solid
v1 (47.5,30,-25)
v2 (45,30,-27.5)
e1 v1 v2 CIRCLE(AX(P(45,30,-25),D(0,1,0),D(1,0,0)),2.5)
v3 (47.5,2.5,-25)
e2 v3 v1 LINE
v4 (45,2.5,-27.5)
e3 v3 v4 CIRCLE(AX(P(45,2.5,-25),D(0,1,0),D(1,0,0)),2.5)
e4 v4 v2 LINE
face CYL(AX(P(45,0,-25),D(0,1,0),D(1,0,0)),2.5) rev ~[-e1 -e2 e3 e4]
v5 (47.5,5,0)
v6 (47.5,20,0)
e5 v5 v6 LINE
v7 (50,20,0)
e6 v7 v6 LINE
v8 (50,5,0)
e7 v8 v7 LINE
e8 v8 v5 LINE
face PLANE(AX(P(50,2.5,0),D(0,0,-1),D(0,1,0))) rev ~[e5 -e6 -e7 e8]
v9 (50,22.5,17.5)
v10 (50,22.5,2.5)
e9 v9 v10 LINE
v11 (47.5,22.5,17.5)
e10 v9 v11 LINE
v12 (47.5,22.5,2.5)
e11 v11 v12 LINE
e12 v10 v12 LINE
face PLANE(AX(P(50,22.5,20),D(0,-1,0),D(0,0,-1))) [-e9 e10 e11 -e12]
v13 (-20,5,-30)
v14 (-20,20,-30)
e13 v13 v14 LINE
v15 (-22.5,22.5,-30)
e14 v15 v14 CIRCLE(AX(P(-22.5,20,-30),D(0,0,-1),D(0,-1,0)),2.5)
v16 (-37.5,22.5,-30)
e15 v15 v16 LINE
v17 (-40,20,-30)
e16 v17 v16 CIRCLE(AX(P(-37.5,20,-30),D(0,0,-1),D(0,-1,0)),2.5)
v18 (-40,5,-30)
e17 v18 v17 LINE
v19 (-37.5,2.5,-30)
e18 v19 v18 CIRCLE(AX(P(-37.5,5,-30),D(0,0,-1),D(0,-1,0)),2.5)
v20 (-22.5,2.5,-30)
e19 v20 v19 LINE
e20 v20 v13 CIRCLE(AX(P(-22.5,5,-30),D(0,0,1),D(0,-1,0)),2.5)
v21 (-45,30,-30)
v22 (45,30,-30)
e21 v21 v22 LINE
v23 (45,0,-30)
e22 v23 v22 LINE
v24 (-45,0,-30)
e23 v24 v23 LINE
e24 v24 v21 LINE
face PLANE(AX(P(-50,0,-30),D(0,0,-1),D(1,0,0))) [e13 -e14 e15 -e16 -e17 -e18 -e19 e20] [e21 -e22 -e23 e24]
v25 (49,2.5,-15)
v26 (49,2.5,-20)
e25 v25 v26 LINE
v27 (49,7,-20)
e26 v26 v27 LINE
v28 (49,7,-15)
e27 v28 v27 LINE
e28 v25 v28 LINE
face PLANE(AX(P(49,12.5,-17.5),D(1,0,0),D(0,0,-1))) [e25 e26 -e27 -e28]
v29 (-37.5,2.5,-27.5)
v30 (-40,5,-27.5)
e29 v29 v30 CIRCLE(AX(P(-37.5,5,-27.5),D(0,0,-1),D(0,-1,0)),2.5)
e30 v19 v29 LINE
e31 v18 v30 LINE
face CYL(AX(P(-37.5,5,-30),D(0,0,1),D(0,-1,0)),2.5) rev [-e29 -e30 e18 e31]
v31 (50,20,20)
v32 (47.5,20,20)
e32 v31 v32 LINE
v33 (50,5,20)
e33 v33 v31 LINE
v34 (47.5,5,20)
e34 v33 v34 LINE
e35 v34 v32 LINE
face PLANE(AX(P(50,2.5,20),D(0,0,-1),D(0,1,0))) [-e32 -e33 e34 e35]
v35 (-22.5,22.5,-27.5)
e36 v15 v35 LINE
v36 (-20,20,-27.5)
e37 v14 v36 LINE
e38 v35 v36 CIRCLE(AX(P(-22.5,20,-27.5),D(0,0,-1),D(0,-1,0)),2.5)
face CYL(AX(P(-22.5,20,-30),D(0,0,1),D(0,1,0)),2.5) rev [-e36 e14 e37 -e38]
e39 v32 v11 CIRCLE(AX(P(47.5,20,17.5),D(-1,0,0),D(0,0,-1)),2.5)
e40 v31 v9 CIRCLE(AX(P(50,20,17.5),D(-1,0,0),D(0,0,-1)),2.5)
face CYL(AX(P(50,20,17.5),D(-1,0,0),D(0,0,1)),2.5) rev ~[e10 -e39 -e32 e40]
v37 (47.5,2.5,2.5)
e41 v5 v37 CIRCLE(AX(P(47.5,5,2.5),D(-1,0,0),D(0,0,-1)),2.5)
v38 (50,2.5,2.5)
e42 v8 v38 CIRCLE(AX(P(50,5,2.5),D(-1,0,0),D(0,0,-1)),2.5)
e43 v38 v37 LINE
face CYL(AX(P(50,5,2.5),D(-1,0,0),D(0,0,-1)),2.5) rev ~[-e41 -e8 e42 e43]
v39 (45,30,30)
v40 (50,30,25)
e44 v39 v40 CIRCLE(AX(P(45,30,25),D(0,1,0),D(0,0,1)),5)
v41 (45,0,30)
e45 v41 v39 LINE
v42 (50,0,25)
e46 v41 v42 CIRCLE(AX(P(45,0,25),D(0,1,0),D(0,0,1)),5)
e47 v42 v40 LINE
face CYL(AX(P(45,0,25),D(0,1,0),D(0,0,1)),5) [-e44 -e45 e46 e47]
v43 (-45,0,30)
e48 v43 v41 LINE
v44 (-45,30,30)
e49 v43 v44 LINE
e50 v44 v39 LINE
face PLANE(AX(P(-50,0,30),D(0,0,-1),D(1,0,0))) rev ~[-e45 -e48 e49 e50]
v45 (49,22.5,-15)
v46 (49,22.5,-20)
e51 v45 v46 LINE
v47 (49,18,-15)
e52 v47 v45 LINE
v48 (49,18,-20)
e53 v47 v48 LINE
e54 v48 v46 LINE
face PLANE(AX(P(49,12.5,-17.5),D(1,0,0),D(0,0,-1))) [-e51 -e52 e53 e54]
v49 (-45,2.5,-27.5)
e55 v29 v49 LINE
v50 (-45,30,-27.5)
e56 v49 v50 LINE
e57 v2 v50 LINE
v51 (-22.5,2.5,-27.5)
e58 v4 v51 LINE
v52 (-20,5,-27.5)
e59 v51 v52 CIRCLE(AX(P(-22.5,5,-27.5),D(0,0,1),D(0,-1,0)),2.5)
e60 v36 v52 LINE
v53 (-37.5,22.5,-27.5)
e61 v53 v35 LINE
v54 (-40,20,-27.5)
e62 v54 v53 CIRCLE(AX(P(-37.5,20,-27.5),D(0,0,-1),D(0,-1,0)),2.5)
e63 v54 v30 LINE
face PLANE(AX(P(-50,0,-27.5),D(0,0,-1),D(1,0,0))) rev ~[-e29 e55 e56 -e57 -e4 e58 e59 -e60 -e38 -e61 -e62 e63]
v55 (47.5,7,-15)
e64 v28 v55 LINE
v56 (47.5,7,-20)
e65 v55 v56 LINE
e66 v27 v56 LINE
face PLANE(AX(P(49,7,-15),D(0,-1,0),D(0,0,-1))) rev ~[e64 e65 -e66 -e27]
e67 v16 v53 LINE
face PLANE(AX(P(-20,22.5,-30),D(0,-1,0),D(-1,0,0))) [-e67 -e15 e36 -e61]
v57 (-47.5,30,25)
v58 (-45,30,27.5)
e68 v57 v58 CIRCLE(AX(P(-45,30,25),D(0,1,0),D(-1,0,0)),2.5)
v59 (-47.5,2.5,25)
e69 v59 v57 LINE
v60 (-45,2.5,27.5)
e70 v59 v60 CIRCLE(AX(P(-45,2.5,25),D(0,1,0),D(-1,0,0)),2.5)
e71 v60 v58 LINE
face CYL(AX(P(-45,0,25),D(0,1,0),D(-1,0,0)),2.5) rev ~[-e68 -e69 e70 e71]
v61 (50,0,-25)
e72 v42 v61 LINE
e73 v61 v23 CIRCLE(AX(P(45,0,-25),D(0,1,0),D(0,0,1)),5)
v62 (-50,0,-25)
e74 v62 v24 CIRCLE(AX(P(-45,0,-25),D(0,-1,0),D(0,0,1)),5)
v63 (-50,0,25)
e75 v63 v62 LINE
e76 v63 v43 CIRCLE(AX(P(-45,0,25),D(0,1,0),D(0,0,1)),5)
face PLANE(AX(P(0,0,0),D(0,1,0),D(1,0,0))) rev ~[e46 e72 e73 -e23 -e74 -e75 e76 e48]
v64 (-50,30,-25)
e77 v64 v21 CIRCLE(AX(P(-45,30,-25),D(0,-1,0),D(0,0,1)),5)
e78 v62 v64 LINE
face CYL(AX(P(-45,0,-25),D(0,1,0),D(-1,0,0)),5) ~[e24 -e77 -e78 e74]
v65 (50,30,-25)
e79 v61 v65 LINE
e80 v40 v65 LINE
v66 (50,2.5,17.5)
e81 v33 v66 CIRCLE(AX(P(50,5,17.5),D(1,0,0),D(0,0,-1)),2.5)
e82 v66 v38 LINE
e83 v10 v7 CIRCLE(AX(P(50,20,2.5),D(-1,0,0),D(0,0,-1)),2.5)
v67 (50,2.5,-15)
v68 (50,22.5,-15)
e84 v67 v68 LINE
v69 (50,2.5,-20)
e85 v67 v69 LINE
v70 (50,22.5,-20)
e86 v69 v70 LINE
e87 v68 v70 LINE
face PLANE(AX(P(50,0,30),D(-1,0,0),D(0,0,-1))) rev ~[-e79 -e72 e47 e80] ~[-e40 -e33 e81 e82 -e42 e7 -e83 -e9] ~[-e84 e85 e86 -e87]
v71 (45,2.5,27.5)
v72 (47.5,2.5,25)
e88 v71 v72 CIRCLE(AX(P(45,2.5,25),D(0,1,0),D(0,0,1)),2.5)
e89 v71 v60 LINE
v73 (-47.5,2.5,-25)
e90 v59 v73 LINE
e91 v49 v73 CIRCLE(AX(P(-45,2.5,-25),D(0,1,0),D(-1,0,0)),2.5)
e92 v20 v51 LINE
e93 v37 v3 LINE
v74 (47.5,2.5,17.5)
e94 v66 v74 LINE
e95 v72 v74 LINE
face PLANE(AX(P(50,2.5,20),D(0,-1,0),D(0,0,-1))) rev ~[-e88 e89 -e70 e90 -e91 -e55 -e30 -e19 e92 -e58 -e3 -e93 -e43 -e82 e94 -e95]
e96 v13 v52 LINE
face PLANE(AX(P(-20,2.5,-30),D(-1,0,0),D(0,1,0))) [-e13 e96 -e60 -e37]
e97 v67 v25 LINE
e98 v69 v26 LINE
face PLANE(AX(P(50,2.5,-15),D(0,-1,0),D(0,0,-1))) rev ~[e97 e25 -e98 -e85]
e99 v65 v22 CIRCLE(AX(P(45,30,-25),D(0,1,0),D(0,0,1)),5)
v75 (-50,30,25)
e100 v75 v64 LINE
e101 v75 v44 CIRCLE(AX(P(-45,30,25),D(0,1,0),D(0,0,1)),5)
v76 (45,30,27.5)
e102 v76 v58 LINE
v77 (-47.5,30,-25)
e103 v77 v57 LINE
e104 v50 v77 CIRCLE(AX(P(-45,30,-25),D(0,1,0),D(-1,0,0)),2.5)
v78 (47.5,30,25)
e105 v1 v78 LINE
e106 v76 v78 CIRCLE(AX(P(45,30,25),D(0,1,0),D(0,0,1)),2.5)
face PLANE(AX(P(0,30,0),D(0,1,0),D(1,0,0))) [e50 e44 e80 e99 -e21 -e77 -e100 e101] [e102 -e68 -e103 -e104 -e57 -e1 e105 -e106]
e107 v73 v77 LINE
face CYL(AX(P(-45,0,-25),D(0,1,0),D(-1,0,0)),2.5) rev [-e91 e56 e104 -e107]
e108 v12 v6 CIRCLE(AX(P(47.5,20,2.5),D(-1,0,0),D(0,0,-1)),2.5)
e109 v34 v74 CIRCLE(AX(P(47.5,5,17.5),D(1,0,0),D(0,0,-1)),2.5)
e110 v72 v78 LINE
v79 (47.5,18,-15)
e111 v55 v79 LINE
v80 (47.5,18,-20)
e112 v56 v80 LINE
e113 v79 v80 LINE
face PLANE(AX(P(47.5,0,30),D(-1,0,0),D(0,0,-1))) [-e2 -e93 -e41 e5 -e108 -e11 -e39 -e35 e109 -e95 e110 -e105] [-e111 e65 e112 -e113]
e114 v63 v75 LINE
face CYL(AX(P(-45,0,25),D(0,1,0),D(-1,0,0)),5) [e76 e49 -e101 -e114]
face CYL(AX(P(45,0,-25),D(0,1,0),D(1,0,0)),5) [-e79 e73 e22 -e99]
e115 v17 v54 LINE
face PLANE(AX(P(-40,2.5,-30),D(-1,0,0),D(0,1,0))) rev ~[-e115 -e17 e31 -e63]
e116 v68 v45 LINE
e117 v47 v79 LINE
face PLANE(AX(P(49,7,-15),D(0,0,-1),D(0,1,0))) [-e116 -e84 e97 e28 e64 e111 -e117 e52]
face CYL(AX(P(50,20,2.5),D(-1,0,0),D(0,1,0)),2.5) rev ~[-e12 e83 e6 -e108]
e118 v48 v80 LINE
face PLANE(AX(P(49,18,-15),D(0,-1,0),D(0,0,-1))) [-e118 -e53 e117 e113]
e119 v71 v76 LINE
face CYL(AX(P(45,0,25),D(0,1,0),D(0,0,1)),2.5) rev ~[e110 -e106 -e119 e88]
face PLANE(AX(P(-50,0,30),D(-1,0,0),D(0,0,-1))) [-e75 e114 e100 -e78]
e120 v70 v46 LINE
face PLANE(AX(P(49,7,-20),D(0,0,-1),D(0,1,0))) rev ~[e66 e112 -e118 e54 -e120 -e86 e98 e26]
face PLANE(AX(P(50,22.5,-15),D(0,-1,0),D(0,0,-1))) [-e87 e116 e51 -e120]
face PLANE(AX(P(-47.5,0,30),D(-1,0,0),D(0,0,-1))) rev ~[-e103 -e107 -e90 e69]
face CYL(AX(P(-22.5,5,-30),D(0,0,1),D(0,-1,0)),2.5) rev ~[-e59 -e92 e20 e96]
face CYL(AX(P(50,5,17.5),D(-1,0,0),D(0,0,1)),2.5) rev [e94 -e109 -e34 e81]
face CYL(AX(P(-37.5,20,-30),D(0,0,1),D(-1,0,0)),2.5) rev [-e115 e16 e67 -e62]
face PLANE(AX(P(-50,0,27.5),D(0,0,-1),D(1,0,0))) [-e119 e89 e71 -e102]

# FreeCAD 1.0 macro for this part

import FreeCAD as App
import Part
import Sketcher
Q = App.Units.Quantity


def edges_at(feature, points):
    """Names of the edges that pass closest to the given points."""
    edges = feature.Shape.Edges
    near = lambda p: min(range(len(edges)), key=lambda i: edges[i].distToShape(Part.Vertex(*p))[0])
    return sorted({f"Edge{near(p) + 1}" for p in points})


def faces_at(feature, points):
    """Names of the faces that lie closest to the given points."""
    faces = feature.Shape.Faces
    near = lambda p: min(range(len(faces)), key=lambda i: faces[i].distToShape(Part.Vertex(*p))[0])
    return sorted({f"Face{near(p) + 1}" for p in points})

doc = App.newDocument("Part")
body = doc.addObject("PartDesign::Body", "Body")

sketch1 = body.newObject("Sketcher::SketchObject", "Sketch")
sketch1.AttachmentSupport = (doc.getObject("XZ_Plane"), [""])
sketch1.MapMode = "FlatFace"
sketch1.addGeometry([
    Part.LineSegment(App.Vector(-50, -30, 0), App.Vector(-50, 30, 0)),
    Part.LineSegment(App.Vector(-50, 30, 0), App.Vector(50, 30, 0)),
    Part.LineSegment(App.Vector(50, 30, 0), App.Vector(50, -30, 0)),
    Part.LineSegment(App.Vector(50, -30, 0), App.Vector(-50, -30, 0)),
], False)
sketch1.addConstraint([
    Sketcher.Constraint("Coincident", 0, 2, 1, 1),
    Sketcher.Constraint("Coincident", 1, 2, 2, 1),
    Sketcher.Constraint("Coincident", 2, 2, 3, 1),
    Sketcher.Constraint("Coincident", 3, 2, 0, 1),
    Sketcher.Constraint("Vertical", 0),
    Sketcher.Constraint("Horizontal", 1),
    Sketcher.Constraint("Vertical", 2),
    Sketcher.Constraint("Horizontal", 3),
    Sketcher.Constraint("Symmetric", 0, 2, 2, 2, -1, 1),
    Sketcher.Constraint("DistanceX", 1, 1, 1, 2, Q("100 mm")),
    Sketcher.Constraint("DistanceY", 0, 1, 0, 2, Q("60 mm")),
])
pad1 = body.newObject("PartDesign::Pad", "Pad")
pad1.Profile = sketch1
pad1.Length = 30
pad1.Reversed = True
doc.recompute()

fillet = body.newObject("PartDesign::Fillet", "Fillet")
fillet.Base = (pad1, edges_at(pad1, [
    (50, 15, 30),
    (-50, 15, 30),
    (-50, 15, -30),
    (50, 15, -30),
]))
fillet.Radius = 5
doc.recompute()

thickness = body.newObject("PartDesign::Thickness", "Thickness")
thickness.Base = (fillet, faces_at(fillet, [(0, 30, 0)]))
thickness.Value = 2.5
thickness.Reversed = True
thickness.Join = "Intersection"

sketch2 = body.newObject("Sketcher::SketchObject", "Sketch001")
sketch2.AttachmentSupport = (doc.getObject("YZ_Plane"), [""])
sketch2.MapMode = "FlatFace"
sketch2.AttachmentOffset = App.Placement(App.Vector(0, 0, 50), App.Rotation())
sketch2.addGeometry([
    Part.LineSegment(App.Vector(22, 20, 0), App.Vector(2, 20, 0)),
    Part.LineSegment(App.Vector(2, 20, 0), App.Vector(2, 0, 0)),
    Part.LineSegment(App.Vector(2, 0, 0), App.Vector(22, 0, 0)),
    Part.LineSegment(App.Vector(22, 0, 0), App.Vector(22, 20, 0)),
], False)
sketch2.addConstraint([
    Sketcher.Constraint("Coincident", 0, 2, 1, 1),
    Sketcher.Constraint("Coincident", 1, 2, 2, 1),
    Sketcher.Constraint("Coincident", 2, 2, 3, 1),
    Sketcher.Constraint("Coincident", 3, 2, 0, 1),
    Sketcher.Constraint("Horizontal", 0),
    Sketcher.Constraint("Vertical", 1),
    Sketcher.Constraint("Horizontal", 2),
    Sketcher.Constraint("Vertical", 3),
    Sketcher.Constraint("PointOnObject", 1, 2, -1),
    Sketcher.Constraint("Equal", 2, 1),
    Sketcher.Constraint("DistanceX", 0, 2, 0, 1, Q("20 mm")),
    Sketcher.Constraint("DistanceX", -1, 1, 0, 2, Q("2.5 mm")),
])
pocket1 = body.newObject("PartDesign::Pocket", "Pocket")
pocket1.Profile = sketch2
pocket1.Type = "UpToFirst"
doc.recompute()

fillet2 = body.newObject("PartDesign::Fillet", "Fillet001")
fillet2.Base = (pocket1, edges_at(pocket1, [
    (48.75, 2.5, 20),
    (48.75, 22.5, 20),
    (48.75, 22.5, 0),
    (48.75, 2.5, 0),
]))
fillet2.Radius = 2.5

sketch3 = body.newObject("Sketcher::SketchObject", "Sketch002")
sketch3.AttachmentSupport = (doc.getObject("XY_Plane"), [""])
sketch3.MapMode = "FlatFace"
sketch3.AttachmentOffset = App.Placement(App.Vector(0, 0, -30), App.Rotation())
sketch3.addGeometry([
    Part.LineSegment(App.Vector(-20, 22, 0), App.Vector(-20, 2, 0)),
    Part.LineSegment(App.Vector(-20, 2, 0), App.Vector(-40, 2, 0)),
    Part.LineSegment(App.Vector(-40, 2, 0), App.Vector(-40, 22, 0)),
    Part.LineSegment(App.Vector(-40, 22, 0), App.Vector(-20, 22, 0)),
], False)
sketch3.addConstraint([
    Sketcher.Constraint("Coincident", 0, 2, 1, 1),
    Sketcher.Constraint("Coincident", 1, 2, 2, 1),
    Sketcher.Constraint("Coincident", 2, 2, 3, 1),
    Sketcher.Constraint("Coincident", 3, 2, 0, 1),
    Sketcher.Constraint("Vertical", 0),
    Sketcher.Constraint("Horizontal", 1),
    Sketcher.Constraint("Vertical", 2),
    Sketcher.Constraint("Horizontal", 3),
    Sketcher.Constraint("Equal", 3, 0),
    Sketcher.Constraint("DistanceX", 1, 2, 1, 1, Q("20 mm")),
    Sketcher.Constraint("DistanceX", 0, 2, -1, 1, Q("20 mm")),
    Sketcher.Constraint("DistanceY", -1, 1, 0, 2, Q("2.5 mm")),
])
pocket2 = body.newObject("PartDesign::Pocket", "Pocket001")
pocket2.Profile = sketch3
pocket2.Type = "UpToFirst"
pocket2.Reversed = True
doc.recompute()

fillet3 = body.newObject("PartDesign::Fillet", "Fillet002")
fillet3.Base = (pocket2, edges_at(pocket2, [
    (-20, 2.5, -28.75),
    (-20, 22.5, -28.75),
    (-40, 22.5, -28.75),
    (-40, 2.5, -28.75),
]))
fillet3.Radius = 2.5

sketch4 = body.newObject("Sketcher::SketchObject", "Sketch003")
sketch4.AttachmentSupport = (doc.getObject("YZ_Plane"), [""])
sketch4.MapMode = "FlatFace"
sketch4.AttachmentOffset = App.Placement(App.Vector(0, 0, 50), App.Rotation())
sketch4.addGeometry([
    Part.LineSegment(App.Vector(22, -15, 0), App.Vector(2, -15, 0)),
    Part.LineSegment(App.Vector(2, -15, 0), App.Vector(2, -20, 0)),
    Part.LineSegment(App.Vector(2, -20, 0), App.Vector(22, -20, 0)),
    Part.LineSegment(App.Vector(22, -20, 0), App.Vector(22, -15, 0)),
], False)
sketch4.addConstraint([
    Sketcher.Constraint("Coincident", 0, 2, 1, 1),
    Sketcher.Constraint("Coincident", 1, 2, 2, 1),
    Sketcher.Constraint("Coincident", 2, 2, 3, 1),
    Sketcher.Constraint("Coincident", 3, 2, 0, 1),
    Sketcher.Constraint("Horizontal", 0),
    Sketcher.Constraint("Vertical", 1),
    Sketcher.Constraint("Horizontal", 2),
    Sketcher.Constraint("Vertical", 3),
    Sketcher.Constraint("DistanceX", 0, 2, 0, 1, Q("20 mm")),
    Sketcher.Constraint("DistanceY", 1, 2, 1, 1, Q("5 mm")),
    Sketcher.Constraint("DistanceY", 0, 2, -1, 1, Q("15 mm")),
    Sketcher.Constraint("DistanceX", -1, 1, 0, 2, Q("2.5 mm")),
])
pocket3 = body.newObject("PartDesign::Pocket", "Pocket002")
pocket3.Profile = sketch4
pocket3.Length = 1

sketch5 = body.newObject("Sketcher::SketchObject", "Sketch004")
sketch5.AttachmentSupport = (doc.getObject("YZ_Plane"), [""])
sketch5.MapMode = "FlatFace"
sketch5.AttachmentOffset = App.Placement(App.Vector(0, 0, 49), App.Rotation())
sketch5.addGeometry([
    Part.LineSegment(App.Vector(18, -15, 0), App.Vector(7, -15, 0)),
    Part.LineSegment(App.Vector(7, -15, 0), App.Vector(7, -20, 0)),
    Part.LineSegment(App.Vector(7, -20, 0), App.Vector(18, -20, 0)),
    Part.LineSegment(App.Vector(18, -20, 0), App.Vector(18, -15, 0)),
], False)
sketch5.addConstraint([
    Sketcher.Constraint("Coincident", 0, 2, 1, 1),
    Sketcher.Constraint("Coincident", 1, 2, 2, 1),
    Sketcher.Constraint("Coincident", 2, 2, 3, 1),
    Sketcher.Constraint("Coincident", 3, 2, 0, 1),
    Sketcher.Constraint("Horizontal", 0),
    Sketcher.Constraint("Vertical", 1),
    Sketcher.Constraint("Horizontal", 2),
    Sketcher.Constraint("Vertical", 3),
    Sketcher.Constraint("DistanceX", 0, 2, 0, 1, Q("11 mm")),
    Sketcher.Constraint("DistanceY", 1, 2, 1, 1, Q("5 mm")),
    Sketcher.Constraint("DistanceX", -1, 1, 0, 2, Q("7 mm")),
    Sketcher.Constraint("DistanceY", 0, 2, -1, 1, Q("15 mm")),
])
pocket4 = body.newObject("PartDesign::Pocket", "Pocket003")
pocket4.Profile = sketch5
pocket4.Type = "UpToFirst"

doc.recompute()
